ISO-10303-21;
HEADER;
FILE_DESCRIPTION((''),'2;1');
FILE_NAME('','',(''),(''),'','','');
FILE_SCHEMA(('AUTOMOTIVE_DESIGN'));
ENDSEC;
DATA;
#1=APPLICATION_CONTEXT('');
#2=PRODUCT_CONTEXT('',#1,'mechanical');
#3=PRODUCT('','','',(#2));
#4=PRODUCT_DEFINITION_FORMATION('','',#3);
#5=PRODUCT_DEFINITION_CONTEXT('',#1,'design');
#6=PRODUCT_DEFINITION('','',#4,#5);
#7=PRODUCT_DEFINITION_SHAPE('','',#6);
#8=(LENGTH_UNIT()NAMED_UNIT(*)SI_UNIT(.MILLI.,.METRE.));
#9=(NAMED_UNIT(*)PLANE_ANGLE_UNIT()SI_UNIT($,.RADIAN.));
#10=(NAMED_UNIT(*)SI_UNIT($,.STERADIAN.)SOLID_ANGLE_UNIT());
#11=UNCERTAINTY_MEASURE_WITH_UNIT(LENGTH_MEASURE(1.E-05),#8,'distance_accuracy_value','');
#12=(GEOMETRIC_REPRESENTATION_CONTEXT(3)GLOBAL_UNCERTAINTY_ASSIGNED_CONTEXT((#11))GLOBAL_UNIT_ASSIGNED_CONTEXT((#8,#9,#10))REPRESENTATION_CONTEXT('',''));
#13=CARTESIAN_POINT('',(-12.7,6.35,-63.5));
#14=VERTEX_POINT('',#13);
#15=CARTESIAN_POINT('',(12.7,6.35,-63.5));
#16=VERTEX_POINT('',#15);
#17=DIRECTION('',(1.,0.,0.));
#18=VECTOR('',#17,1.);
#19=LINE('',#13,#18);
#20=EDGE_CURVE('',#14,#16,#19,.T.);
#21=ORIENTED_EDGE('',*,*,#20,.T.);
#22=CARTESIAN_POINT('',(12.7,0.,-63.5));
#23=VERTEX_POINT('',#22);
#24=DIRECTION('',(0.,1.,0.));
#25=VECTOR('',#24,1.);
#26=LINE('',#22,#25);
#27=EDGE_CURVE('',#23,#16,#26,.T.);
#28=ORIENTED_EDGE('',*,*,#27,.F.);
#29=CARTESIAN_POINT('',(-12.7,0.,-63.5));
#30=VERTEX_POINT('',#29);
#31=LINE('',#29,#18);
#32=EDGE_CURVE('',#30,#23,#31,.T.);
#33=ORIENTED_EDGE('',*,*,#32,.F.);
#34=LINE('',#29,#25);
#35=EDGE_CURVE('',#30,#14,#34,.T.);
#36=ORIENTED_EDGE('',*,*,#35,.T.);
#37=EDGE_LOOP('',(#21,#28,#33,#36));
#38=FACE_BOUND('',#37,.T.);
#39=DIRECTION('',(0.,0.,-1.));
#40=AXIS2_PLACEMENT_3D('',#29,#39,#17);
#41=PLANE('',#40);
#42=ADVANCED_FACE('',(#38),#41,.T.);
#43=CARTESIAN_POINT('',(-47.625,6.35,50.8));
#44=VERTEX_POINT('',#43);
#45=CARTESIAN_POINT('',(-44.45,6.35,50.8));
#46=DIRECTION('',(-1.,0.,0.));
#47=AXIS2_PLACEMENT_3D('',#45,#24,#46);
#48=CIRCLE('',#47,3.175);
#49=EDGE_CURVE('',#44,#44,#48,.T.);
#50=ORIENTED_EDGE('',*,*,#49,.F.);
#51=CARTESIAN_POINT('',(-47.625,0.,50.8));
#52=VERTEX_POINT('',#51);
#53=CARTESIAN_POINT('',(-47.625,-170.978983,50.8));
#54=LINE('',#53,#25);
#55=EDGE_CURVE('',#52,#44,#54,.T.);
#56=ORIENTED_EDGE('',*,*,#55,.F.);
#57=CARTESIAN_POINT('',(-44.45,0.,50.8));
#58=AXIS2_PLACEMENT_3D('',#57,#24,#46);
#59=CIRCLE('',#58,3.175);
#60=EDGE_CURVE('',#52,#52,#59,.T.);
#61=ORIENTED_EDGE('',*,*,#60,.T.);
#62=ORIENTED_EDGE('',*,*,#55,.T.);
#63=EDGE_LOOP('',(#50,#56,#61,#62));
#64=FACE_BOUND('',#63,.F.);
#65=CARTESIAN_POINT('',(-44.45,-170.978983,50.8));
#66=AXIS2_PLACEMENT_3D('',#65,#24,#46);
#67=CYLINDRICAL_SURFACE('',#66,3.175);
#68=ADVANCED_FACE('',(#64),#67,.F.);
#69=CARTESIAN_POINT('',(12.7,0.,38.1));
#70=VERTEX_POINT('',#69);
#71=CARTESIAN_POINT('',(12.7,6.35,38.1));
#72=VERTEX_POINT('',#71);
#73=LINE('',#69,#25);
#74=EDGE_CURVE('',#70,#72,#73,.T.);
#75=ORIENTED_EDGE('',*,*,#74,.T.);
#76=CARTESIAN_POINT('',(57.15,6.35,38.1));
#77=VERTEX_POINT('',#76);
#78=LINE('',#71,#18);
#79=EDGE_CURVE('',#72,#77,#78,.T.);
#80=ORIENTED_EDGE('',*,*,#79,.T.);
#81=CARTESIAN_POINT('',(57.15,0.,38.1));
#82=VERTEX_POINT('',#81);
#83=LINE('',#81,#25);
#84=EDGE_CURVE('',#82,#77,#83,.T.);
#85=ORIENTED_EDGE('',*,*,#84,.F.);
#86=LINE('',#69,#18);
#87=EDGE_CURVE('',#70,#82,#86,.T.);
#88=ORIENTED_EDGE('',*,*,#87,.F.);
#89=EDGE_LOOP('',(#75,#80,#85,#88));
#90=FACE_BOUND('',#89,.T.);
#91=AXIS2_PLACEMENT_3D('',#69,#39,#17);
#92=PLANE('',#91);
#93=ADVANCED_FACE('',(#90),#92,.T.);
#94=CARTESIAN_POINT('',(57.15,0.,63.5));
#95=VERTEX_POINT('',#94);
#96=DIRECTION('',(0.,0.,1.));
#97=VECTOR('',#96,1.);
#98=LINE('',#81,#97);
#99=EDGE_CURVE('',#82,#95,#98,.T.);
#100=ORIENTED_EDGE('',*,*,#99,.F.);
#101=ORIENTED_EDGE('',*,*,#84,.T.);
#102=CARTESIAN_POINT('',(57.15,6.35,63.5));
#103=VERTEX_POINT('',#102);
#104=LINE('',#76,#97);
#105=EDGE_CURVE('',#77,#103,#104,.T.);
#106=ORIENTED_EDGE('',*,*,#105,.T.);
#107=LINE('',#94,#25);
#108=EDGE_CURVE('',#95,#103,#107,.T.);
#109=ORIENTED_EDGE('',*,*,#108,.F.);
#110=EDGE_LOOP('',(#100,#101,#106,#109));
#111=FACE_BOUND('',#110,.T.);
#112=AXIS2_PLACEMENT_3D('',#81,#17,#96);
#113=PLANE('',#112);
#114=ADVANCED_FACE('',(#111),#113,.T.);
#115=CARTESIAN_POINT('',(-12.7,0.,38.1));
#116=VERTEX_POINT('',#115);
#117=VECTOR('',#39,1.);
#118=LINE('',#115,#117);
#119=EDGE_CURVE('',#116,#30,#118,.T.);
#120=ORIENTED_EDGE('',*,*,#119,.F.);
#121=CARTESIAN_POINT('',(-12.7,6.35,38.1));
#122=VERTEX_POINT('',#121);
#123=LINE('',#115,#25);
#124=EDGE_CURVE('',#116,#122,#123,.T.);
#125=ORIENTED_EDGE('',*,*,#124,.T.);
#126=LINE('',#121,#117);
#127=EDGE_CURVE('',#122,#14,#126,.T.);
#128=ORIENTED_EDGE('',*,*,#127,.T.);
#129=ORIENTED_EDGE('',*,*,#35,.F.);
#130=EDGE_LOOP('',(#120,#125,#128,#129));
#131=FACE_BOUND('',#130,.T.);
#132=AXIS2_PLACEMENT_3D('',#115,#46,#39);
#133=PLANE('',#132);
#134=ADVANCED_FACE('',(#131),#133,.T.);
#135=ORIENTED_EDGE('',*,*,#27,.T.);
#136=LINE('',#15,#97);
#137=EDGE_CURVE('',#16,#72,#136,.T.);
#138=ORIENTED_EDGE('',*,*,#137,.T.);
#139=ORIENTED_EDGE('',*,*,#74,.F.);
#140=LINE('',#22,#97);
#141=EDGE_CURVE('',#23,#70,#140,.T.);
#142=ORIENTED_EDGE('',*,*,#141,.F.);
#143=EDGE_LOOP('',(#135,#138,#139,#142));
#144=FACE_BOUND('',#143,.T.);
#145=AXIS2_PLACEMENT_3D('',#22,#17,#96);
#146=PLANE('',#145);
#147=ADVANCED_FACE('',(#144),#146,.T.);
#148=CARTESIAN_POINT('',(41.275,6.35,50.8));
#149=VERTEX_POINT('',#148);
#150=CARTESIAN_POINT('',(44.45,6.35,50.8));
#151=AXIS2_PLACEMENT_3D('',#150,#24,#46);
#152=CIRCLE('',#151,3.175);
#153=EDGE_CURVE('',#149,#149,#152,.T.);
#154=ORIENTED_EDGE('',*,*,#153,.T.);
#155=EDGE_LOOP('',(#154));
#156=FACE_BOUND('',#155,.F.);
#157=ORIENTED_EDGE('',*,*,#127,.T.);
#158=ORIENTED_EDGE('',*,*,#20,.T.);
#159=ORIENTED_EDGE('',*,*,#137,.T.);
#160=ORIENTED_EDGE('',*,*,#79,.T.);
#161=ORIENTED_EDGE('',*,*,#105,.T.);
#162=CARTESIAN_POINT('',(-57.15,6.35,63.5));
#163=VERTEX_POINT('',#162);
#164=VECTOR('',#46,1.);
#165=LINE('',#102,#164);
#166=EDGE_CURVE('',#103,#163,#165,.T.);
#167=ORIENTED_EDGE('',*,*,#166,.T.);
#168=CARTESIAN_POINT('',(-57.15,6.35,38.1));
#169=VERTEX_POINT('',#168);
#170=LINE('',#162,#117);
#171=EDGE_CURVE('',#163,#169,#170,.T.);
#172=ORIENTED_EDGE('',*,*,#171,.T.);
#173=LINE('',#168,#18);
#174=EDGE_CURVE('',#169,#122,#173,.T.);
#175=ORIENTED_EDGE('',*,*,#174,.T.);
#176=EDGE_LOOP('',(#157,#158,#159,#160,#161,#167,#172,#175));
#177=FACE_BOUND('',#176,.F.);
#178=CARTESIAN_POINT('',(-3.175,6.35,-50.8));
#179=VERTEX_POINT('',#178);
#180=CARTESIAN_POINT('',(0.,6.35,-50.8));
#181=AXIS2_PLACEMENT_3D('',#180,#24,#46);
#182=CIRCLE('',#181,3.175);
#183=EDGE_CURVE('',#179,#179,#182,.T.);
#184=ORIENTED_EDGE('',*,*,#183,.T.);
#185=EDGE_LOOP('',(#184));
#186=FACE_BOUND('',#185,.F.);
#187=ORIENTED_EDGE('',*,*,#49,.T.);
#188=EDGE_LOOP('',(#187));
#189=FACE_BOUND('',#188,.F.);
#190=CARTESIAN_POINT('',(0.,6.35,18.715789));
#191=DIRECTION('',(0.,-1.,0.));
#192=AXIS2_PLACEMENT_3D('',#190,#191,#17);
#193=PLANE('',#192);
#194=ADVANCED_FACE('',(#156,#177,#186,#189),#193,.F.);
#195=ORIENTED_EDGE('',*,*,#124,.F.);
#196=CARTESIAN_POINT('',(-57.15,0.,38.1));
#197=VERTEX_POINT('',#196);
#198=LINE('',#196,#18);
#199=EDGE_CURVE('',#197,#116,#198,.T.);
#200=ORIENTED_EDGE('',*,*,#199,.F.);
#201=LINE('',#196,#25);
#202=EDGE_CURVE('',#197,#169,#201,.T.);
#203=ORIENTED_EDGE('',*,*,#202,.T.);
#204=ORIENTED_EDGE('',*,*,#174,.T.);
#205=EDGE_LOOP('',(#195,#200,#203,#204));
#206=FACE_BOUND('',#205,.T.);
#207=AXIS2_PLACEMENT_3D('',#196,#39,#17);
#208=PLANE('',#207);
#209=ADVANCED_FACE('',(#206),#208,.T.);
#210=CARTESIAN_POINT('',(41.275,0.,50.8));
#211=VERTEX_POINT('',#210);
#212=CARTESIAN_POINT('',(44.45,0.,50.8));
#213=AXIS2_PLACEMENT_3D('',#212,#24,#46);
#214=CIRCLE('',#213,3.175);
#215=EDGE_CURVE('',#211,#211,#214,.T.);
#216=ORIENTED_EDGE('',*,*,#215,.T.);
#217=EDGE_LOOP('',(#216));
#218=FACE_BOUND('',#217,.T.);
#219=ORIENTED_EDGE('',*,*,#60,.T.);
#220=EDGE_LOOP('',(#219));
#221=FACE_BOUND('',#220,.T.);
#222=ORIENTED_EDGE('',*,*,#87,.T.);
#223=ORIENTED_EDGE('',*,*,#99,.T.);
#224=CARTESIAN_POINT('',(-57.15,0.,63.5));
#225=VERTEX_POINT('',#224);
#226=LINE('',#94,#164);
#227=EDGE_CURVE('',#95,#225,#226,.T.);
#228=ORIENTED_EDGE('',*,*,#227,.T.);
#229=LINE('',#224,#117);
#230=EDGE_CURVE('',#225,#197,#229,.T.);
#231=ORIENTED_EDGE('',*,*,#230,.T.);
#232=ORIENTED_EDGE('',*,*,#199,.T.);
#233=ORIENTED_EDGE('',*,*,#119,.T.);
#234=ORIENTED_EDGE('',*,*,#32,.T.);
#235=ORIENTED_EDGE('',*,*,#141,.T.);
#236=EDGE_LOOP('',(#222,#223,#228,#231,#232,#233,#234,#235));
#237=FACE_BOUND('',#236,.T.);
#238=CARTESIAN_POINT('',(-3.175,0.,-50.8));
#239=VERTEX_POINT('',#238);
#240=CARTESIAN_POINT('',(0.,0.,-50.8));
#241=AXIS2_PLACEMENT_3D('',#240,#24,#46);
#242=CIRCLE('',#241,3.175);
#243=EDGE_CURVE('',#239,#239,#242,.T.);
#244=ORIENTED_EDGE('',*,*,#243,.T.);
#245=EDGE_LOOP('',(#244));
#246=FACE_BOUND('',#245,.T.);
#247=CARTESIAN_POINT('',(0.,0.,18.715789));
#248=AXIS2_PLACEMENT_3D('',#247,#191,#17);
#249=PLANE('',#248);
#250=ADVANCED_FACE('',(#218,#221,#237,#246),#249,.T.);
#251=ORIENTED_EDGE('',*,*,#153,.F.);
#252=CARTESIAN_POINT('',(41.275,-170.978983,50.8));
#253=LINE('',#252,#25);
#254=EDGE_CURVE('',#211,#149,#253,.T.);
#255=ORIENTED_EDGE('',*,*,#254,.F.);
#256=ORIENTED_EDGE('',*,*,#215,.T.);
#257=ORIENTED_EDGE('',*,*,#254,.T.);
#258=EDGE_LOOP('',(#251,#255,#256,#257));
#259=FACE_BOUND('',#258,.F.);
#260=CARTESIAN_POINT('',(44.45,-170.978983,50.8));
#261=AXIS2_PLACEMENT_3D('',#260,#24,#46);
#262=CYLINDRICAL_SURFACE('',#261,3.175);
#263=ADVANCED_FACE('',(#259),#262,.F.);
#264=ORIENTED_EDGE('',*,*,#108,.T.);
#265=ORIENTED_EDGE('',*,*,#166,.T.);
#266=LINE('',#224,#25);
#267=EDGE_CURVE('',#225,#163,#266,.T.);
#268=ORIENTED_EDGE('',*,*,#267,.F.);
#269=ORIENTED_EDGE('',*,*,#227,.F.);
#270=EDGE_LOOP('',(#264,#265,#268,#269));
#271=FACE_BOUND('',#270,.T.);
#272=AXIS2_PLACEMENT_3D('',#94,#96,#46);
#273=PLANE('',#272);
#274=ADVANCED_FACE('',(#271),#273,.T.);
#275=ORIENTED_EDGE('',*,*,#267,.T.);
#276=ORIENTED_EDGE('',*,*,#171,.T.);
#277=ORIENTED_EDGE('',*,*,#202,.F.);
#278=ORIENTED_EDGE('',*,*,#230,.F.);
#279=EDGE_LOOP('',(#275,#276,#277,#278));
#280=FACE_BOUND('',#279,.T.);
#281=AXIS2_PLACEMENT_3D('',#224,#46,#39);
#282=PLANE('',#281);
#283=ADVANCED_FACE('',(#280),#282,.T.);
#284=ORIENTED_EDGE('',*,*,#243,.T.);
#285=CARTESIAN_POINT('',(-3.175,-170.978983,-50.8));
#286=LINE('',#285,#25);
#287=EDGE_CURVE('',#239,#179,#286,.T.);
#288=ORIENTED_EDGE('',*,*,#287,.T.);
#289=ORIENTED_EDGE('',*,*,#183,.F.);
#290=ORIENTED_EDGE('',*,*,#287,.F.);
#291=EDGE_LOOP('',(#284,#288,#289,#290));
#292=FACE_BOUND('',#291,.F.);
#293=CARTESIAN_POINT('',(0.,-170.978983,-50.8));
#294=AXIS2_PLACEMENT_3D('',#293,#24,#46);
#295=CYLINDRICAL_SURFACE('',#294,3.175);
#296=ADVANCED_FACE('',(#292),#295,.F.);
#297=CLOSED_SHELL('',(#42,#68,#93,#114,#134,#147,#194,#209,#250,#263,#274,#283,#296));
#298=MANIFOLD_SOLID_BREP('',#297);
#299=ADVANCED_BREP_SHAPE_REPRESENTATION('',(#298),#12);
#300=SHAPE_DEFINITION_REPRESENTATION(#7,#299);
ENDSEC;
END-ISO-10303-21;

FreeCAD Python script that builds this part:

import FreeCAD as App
import Part
import Sketcher
from FreeCAD import Vector
Q = App.Units.Quantity

doc = App.newDocument("Part")
params = doc.addObject("Spreadsheet::Sheet", "Params")
for row, (alias, value) in enumerate([
    ("sketch1_width", "1 in"),
    ("sketch1_height", "4 in"),
    ("sketch1_width2", "4.5 in"),
    ("pad1_length", "0.25 in"),
    ("sketch2_diameter", "0.25 in"),
    ("hole_diameter", "0.25 in"),
], start=1):
    params.set(f"A{row}", alias)
    params.set(f"B{row}", "=" + value)
    params.setAlias(f"B{row}", alias)

body = doc.addObject("PartDesign::Body", "Body")

sketch1 = body.newObject("Sketcher::SketchObject", "Sketch")
sketch1.AttachmentSupport = (doc.getObject("XZ_Plane"), [""])
sketch1.MapMode = "FlatFace"
sketch1.addGeometry(Part.LineSegment(Vector(-13, -64, 0), Vector(13, -64, 0)), False)
sketch1.addGeometry(Part.LineSegment(Vector(13, -64, 0), Vector(13, 38, 0)), False)
sketch1.addGeometry(Part.LineSegment(Vector(13, 38, 0), Vector(57, 38, 0)), False)
sketch1.addGeometry(Part.LineSegment(Vector(57, 38, 0), Vector(57, 64, 0)), False)
sketch1.addGeometry(Part.LineSegment(Vector(57, 64, 0), Vector(-57, 64, 0)), False)
sketch1.addGeometry(Part.LineSegment(Vector(-57, 64, 0), Vector(-57, 38, 0)), False)
sketch1.addGeometry(Part.LineSegment(Vector(-57, 38, 0), Vector(-13, 38, 0)), False)
sketch1.addGeometry(Part.LineSegment(Vector(-13, 38, 0), Vector(-13, -64, 0)), False)
sketch1.addConstraint(Sketcher.Constraint("Coincident", 0, 2, 1, 1))
sketch1.addConstraint(Sketcher.Constraint("Coincident", 1, 2, 2, 1))
sketch1.addConstraint(Sketcher.Constraint("Coincident", 2, 2, 3, 1))
sketch1.addConstraint(Sketcher.Constraint("Coincident", 3, 2, 4, 1))
sketch1.addConstraint(Sketcher.Constraint("Coincident", 4, 2, 5, 1))
sketch1.addConstraint(Sketcher.Constraint("Coincident", 5, 2, 6, 1))
sketch1.addConstraint(Sketcher.Constraint("Coincident", 6, 2, 7, 1))
sketch1.addConstraint(Sketcher.Constraint("Coincident", 7, 2, 0, 1))
sketch1.addConstraint(Sketcher.Constraint("Horizontal", 0))
sketch1.addConstraint(Sketcher.Constraint("Vertical", 1))
sketch1.addConstraint(Sketcher.Constraint("Horizontal", 2))
sketch1.addConstraint(Sketcher.Constraint("Vertical", 3))
sketch1.addConstraint(Sketcher.Constraint("Horizontal", 4))
sketch1.addConstraint(Sketcher.Constraint("Vertical", 5))
sketch1.addConstraint(Sketcher.Constraint("Horizontal", 6))
sketch1.addConstraint(Sketcher.Constraint("Vertical", 7))
sketch1.addConstraint(Sketcher.Constraint("Symmetric", 2, 2, 5, 2, -2))
sketch1.addConstraint(Sketcher.Constraint("Equal", 2, 6))
sketch1.addConstraint(Sketcher.Constraint("Equal", 0, 3))
sketch1.addConstraint(Sketcher.Constraint("DistanceX", 0, 1, 0, 2, Q("1 in")))
sketch1.addConstraint(Sketcher.Constraint("DistanceY", 1, 1, 1, 2, Q("4 in")))
sketch1.addConstraint(Sketcher.Constraint("DistanceX", 4, 2, 4, 1, Q("4.5 in")))
sketch1.addConstraint(Sketcher.Constraint("DistanceY", 0, 2, -1, 1, Q("2.5 in")))
sketch1.setExpression("Constraints[19]", "Params.sketch1_width")
sketch1.setExpression("Constraints[20]", "Params.sketch1_height")
sketch1.setExpression("Constraints[21]", "Params.sketch1_width2")
pad1 = body.newObject("PartDesign::Pad", "Pad")
pad1.Profile = sketch1
pad1.setExpression("Length", "Params.pad1_length")
pad1.Reversed = True

sketch2 = body.newObject("Sketcher::SketchObject", "Sketch001")
sketch2.AttachmentSupport = (doc.getObject("XZ_Plane"), [""])
sketch2.MapMode = "FlatFace"
sketch2.addGeometry(Part.Circle(Vector(-44.5, 50.8, 0), Vector(0, 0, 1), 3.2), False)
sketch2.addGeometry(Part.Circle(Vector(44.5, 50.8, 0), Vector(0, 0, 1), 3.2), False)
sketch2.addGeometry(Part.Circle(Vector(0, -50.8, 0), Vector(0, 0, 1), 3.2), False)
sketch2.addConstraint(Sketcher.Constraint("Equal", 0, 1))
sketch2.addConstraint(Sketcher.Constraint("Equal", 1, 2))
sketch2.addConstraint(Sketcher.Constraint("Symmetric", 0, 3, 1, 3, -2))
sketch2.addConstraint(Sketcher.Constraint("PointOnObject", 2, 3, -2))
sketch2.addConstraint(Sketcher.Constraint("Diameter", 0, Q("0.25 in")))
sketch2.addConstraint(Sketcher.Constraint("DistanceY", -1, 1, 0, 3, Q("2 in")))
sketch2.addConstraint(Sketcher.Constraint("DistanceY", 2, 3, -1, 1, Q("2 in")))
sketch2.addConstraint(Sketcher.Constraint("DistanceX", 0, 3, 1, 3, Q("3.5 in")))
sketch2.setExpression("Constraints[4]", "Params.sketch2_diameter")
doc.recompute()
hole = body.newObject("PartDesign::Hole", "Hole")
hole.Profile = sketch2
hole.ThreadType = "None"
hole.setExpression("Diameter", "Params.hole_diameter")
hole.DepthType = "ThroughAll"

doc.recompute()
